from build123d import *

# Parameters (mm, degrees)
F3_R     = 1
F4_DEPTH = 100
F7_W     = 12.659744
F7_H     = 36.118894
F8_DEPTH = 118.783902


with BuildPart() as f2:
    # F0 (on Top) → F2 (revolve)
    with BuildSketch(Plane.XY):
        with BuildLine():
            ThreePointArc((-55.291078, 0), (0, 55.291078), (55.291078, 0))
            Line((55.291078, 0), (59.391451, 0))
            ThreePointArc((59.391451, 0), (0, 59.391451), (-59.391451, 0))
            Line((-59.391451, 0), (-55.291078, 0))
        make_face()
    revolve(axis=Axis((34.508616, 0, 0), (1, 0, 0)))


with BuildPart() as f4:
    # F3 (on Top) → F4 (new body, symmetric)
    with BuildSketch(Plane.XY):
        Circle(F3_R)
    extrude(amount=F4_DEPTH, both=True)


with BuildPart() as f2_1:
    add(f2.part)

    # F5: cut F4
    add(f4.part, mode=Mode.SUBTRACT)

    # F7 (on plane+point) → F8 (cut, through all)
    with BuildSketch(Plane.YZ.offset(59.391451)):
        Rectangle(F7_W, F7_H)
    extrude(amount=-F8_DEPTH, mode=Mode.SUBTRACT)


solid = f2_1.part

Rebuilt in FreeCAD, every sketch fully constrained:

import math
import FreeCAD as App
import Part
import Sketcher
from FreeCAD import Vector

doc = App.newDocument("Part")
body = doc.addObject("PartDesign::Body", "Body")

sketch1 = body.newObject("Sketcher::SketchObject", "Sketch")
sketch1.AttachmentSupport = (doc.getObject("XY_Plane"), [""])
sketch1.MapMode = "FlatFace"
sketch1.addGeometry(Part.ArcOfCircle(Part.Circle(Vector(0, 0, 0), Vector(0, 0, 1), 55.291078), math.radians(0), math.radians(180)), False)
sketch1.addGeometry(Part.LineSegment(Vector(55.291078, 0, 0), Vector(59.391451, 0, 0)), False)
sketch1.addGeometry(Part.ArcOfCircle(Part.Circle(Vector(0, 0, 0), Vector(0, 0, 1), 59.391451), math.radians(0), math.radians(180)), False)
sketch1.addGeometry(Part.LineSegment(Vector(-59.391451, 0, 0), Vector(-55.291078, 0, 0)), False)
sketch1.addConstraint(Sketcher.Constraint("Coincident", 0, 1, 1, 1))
sketch1.addConstraint(Sketcher.Constraint("Coincident", 1, 2, 2, 1))
sketch1.addConstraint(Sketcher.Constraint("Coincident", 2, 2, 3, 1))
sketch1.addConstraint(Sketcher.Constraint("Coincident", 3, 2, 0, 2))
sketch1.addConstraint(Sketcher.Constraint("Horizontal", 1))
sketch1.addConstraint(Sketcher.Constraint("Horizontal", 3))
sketch1.addConstraint(Sketcher.Constraint("Coincident", 0, 3, -1, 1))
sketch1.addConstraint(Sketcher.Constraint("Coincident", 2, 3, -1, 1))
sketch1.addConstraint(Sketcher.Constraint("PointOnObject", 0, 1, -1))
sketch1.addConstraint(Sketcher.Constraint("PointOnObject", 2, 2, -1))
sketch1.addConstraint(Sketcher.Constraint("Radius", 2, 59.391451))
sketch1.addConstraint(Sketcher.Constraint("Radius", 0, 55.291078))
revolution = body.newObject("PartDesign::Revolution", "Revolution")
revolution.Profile = sketch1
revolution.ReferenceAxis = (sketch1, ["H_Axis"])
revolution.Angle = 360
body2 = doc.addObject("PartDesign::Body", "Body001")

sketch2 = body2.newObject("Sketcher::SketchObject", "Sketch001")
sketch2.AttachmentSupport = (doc.getObject("XY_Plane001"), [""])
sketch2.MapMode = "FlatFace"
sketch2.addGeometry(Part.Circle(Vector(0, 0, 0), Vector(0, 0, 1), 1), False)
sketch2.addConstraint(Sketcher.Constraint("Coincident", 0, 3, -1, 1))
sketch2.addConstraint(Sketcher.Constraint("Diameter", 0, 2.0))
pad1 = body2.newObject("PartDesign::Pad", "Pad")
pad1.Profile = sketch2
pad1.Length = 200
pad1.Midplane = True
doc.recompute()

boolean = body.newObject("PartDesign::Boolean", "Boolean")
boolean.Type = "Cut"
boolean.addObjects([body2])

sketch3 = body.newObject("Sketcher::SketchObject", "Sketch002")
sketch3.AttachmentSupport = (doc.getObject("YZ_Plane"), [""])
sketch3.MapMode = "FlatFace"
sketch3.AttachmentOffset = App.Placement(Vector(0, 0, 59.391451), App.Rotation())
sketch3.addGeometry(Part.LineSegment(Vector(-6.329872, 18.059447, 0), Vector(-6.329872, -18.059447, 0)), False)
sketch3.addGeometry(Part.LineSegment(Vector(-6.329872, -18.059447, 0), Vector(6.329872, -18.059447, 0)), False)
sketch3.addGeometry(Part.LineSegment(Vector(6.329872, -18.059447, 0), Vector(6.329872, 18.059447, 0)), False)
sketch3.addGeometry(Part.LineSegment(Vector(6.329872, 18.059447, 0), Vector(-6.329872, 18.059447, 0)), False)
sketch3.addConstraint(Sketcher.Constraint("Coincident", 0, 2, 1, 1))
sketch3.addConstraint(Sketcher.Constraint("Coincident", 1, 2, 2, 1))
sketch3.addConstraint(Sketcher.Constraint("Coincident", 2, 2, 3, 1))
sketch3.addConstraint(Sketcher.Constraint("Coincident", 3, 2, 0, 1))
sketch3.addConstraint(Sketcher.Constraint("Vertical", 0))
sketch3.addConstraint(Sketcher.Constraint("Horizontal", 1))
sketch3.addConstraint(Sketcher.Constraint("Vertical", 2))
sketch3.addConstraint(Sketcher.Constraint("Horizontal", 3))
sketch3.addConstraint(Sketcher.Constraint("Symmetric", 0, 2, 2, 2, -1, 1))
sketch3.addConstraint(Sketcher.Constraint("DistanceX", 1, 1, 1, 2, 12.659744))
sketch3.addConstraint(Sketcher.Constraint("DistanceY", 0, 2, 0, 1, 36.118894))
pocket1 = body.newObject("PartDesign::Pocket", "Pocket")
pocket1.Profile = sketch3
pocket1.Type = "ThroughAll"

doc.recompute()
